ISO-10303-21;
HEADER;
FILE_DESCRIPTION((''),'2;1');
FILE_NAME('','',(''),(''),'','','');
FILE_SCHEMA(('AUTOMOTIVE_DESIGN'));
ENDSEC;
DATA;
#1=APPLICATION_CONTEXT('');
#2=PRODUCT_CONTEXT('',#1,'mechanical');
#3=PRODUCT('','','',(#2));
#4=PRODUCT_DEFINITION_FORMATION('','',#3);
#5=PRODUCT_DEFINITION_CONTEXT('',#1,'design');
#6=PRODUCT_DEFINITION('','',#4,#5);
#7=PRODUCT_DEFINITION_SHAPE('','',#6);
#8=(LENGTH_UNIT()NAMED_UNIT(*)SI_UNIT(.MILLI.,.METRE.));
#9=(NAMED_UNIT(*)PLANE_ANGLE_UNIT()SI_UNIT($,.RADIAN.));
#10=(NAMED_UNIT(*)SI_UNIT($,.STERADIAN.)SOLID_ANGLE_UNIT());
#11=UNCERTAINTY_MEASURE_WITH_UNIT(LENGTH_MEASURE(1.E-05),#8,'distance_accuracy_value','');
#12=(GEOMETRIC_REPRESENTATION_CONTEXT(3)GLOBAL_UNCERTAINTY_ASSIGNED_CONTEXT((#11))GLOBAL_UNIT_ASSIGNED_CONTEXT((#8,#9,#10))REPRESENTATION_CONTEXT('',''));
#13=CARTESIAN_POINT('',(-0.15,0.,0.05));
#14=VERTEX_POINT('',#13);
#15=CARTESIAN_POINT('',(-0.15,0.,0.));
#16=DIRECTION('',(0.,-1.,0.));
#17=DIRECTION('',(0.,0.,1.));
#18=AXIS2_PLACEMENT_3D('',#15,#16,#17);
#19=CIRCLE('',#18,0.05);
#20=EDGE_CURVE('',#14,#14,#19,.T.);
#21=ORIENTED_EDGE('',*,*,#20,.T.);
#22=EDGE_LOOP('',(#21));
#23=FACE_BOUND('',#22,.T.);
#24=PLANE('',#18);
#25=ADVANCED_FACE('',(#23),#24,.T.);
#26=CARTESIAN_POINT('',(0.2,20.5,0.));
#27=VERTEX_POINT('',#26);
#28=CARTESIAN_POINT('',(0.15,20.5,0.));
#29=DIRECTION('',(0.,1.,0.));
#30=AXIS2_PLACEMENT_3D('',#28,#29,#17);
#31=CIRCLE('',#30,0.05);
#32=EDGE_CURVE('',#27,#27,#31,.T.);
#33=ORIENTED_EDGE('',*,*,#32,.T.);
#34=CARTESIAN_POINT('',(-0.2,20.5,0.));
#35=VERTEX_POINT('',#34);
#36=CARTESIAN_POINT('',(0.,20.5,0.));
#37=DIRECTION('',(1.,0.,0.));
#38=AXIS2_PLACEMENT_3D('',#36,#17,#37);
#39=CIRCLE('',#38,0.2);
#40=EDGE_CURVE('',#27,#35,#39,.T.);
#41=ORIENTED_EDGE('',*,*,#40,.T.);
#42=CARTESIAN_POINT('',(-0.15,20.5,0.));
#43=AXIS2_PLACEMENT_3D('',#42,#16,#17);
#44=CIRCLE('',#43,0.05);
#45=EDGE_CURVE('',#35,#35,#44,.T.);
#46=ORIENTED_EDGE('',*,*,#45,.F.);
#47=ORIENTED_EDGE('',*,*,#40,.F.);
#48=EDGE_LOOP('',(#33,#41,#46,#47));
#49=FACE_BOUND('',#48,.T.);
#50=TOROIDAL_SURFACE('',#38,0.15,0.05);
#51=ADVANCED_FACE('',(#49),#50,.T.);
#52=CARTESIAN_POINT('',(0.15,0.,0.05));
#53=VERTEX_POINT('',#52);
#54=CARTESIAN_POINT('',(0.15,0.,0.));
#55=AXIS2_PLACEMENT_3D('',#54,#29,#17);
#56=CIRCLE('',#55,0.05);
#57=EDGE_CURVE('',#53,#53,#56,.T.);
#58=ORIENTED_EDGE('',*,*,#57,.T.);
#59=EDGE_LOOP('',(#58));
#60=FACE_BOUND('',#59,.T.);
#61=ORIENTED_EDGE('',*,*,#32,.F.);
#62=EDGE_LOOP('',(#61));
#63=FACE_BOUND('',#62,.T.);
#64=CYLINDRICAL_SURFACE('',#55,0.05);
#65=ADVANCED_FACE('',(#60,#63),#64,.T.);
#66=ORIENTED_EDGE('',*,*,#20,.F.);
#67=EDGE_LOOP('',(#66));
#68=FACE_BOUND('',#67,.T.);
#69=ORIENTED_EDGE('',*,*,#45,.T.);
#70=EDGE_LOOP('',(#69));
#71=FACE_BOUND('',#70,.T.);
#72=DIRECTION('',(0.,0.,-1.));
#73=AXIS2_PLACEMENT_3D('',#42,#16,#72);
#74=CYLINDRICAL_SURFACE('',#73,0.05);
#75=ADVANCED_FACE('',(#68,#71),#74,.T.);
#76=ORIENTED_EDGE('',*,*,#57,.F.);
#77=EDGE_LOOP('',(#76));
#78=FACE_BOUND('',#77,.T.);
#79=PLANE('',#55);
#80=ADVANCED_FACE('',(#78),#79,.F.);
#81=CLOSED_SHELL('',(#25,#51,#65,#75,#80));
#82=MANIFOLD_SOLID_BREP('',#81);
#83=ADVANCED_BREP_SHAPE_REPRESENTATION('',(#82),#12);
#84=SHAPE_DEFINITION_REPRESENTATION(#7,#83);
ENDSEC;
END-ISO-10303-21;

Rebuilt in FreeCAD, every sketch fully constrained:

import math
import FreeCAD as App
import Part
import Sketcher
Q = App.Units.Quantity

doc = App.newDocument("Part")
params = doc.addObject("Spreadsheet::Sheet", "Params")
for row, (alias, value) in enumerate([
    ("sketch1_diameter", "0.1 mm"),
    ("sketch2_radius", "0.15 mm"),
    ("sketch2_height", "20.5 mm"),
], start=1):
    params.set(f"A{row}", alias)
    params.set(f"B{row}", "=" + value)
    params.setAlias(f"B{row}", alias)

body = doc.addObject("PartDesign::Body", "Body")

sketch1 = body.newObject("Sketcher::SketchObject", "Sketch")
sketch1.AttachmentSupport = (doc.getObject("XZ_Plane"), [""])
sketch1.MapMode = "FlatFace"
sketch1.addGeometry(Part.Circle(App.Vector(0.15, 0, 0), App.Vector(0, 0, 1), 0.05), False)
sketch1.addConstraint(Sketcher.Constraint("PointOnObject", 0, 3, -1))
sketch1.addConstraint(Sketcher.Constraint("Diameter", 0, Q("0.1 mm")))
sketch1.addConstraint(Sketcher.Constraint("DistanceX", -1, 1, 0, 3, Q("0.15 mm")))
sketch1.setExpression("Constraints[1]", "Params.sketch1_diameter")

sketch2 = body.newObject("Sketcher::SketchObject", "Sketch001")
sketch2.AttachmentSupport = (doc.getObject("XY_Plane"), [""])
sketch2.MapMode = "FlatFace"
sketch2.addGeometry(Part.LineSegment(App.Vector(-0.15, 0, 0), App.Vector(-0.15, 20.5, 0)), False)
sketch2.addGeometry(Part.ArcOfCircle(Part.Circle(App.Vector(0, 20.5, 0), App.Vector(0, 0, 1), 0.15), math.radians(0), math.radians(180)), False)
sketch2.addGeometry(Part.LineSegment(App.Vector(0.15, 20.5, 0), App.Vector(0.15, 0, 0)), False)
sketch2.addConstraint(Sketcher.Constraint("Tangent", 0, 2, 1, 2))
sketch2.addConstraint(Sketcher.Constraint("Tangent", 1, 1, 2, 1))
sketch2.addConstraint(Sketcher.Constraint("Vertical", 0))
sketch2.addConstraint(Sketcher.Constraint("Vertical", 2))
sketch2.addConstraint(Sketcher.Constraint("Symmetric", 0, 1, 2, 2, -1, 1))
sketch2.addConstraint(Sketcher.Constraint("PointOnObject", 0, 1, -1))
sketch2.addConstraint(Sketcher.Constraint("Radius", 1, Q("0.15 mm")))
sketch2.addConstraint(Sketcher.Constraint("DistanceY", 0, 1, 0, 2, Q("20.5 mm")))
sketch2.setExpression("Constraints[6]", "Params.sketch2_radius")
sketch2.setExpression("Constraints[7]", "Params.sketch2_height")
doc.recompute()

additivepipe = body.newObject("PartDesign::AdditivePipe", "AdditivePipe")
additivepipe.Profile = sketch1
additivepipe.Spine = (sketch2, ["Edge1", "Edge2", "Edge3"])

doc.recompute()
